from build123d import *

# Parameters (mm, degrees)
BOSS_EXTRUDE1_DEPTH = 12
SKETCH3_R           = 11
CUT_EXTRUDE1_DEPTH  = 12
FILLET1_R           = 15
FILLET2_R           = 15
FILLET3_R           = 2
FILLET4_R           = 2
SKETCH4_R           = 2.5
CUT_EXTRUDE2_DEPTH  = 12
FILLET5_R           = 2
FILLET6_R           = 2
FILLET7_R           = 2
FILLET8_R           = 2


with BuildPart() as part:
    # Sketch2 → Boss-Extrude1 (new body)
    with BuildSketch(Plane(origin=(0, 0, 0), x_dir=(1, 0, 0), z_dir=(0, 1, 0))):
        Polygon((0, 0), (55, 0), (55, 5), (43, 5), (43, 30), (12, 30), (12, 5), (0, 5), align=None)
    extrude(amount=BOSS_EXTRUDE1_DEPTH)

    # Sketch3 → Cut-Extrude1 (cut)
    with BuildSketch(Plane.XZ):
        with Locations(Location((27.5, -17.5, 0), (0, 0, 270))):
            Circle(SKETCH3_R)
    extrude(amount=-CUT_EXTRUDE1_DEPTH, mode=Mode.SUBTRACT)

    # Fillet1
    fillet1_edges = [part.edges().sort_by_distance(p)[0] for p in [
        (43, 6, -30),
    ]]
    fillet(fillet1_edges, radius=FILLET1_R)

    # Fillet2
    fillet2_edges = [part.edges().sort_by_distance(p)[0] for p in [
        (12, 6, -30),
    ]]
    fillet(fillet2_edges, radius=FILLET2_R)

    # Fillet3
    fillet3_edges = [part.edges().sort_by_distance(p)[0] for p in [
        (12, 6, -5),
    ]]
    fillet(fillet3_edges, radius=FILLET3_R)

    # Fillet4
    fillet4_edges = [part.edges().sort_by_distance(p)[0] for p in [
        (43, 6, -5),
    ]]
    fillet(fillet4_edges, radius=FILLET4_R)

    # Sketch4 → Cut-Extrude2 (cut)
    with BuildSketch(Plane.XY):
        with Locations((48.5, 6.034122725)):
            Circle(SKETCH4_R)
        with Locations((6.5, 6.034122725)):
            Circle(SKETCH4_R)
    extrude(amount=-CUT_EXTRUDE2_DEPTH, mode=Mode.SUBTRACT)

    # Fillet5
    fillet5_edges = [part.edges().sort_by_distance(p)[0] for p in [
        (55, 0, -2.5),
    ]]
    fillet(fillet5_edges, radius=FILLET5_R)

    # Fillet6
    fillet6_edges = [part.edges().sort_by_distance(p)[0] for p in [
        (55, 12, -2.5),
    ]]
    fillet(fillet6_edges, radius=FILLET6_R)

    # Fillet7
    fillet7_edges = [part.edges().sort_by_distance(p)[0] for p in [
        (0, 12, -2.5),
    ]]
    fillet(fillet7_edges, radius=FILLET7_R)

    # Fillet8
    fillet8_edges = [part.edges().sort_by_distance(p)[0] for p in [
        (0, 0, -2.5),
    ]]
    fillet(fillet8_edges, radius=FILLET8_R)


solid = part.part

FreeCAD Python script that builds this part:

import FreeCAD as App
import Part
import Sketcher

V = App.Vector
Q = App.Units.Quantity


def edges_at(feature, points):
    """Names of the edges that pass closest to the given points."""
    edges = feature.Shape.Edges
    near = lambda p: min(range(len(edges)), key=lambda i: edges[i].distToShape(Part.Vertex(*p))[0])
    return sorted({f"Edge{near(p) + 1}" for p in points})


def add_polygon(sketch, points):
    """Adds a closed chain of lines whose ends are joined by coincident constraints."""
    first, n = sketch.GeometryCount, len(points)
    for a, b in zip(points, points[1:] + points[:1]):
        sketch.addGeometry(Part.LineSegment(App.Vector(*a, 0), App.Vector(*b, 0)), False)
    for i in range(n):
        sketch.addConstraint(Sketcher.Constraint("Coincident", first + i, 2, first + (i + 1) % n, 1))

doc = App.newDocument("Part")
params = doc.addObject("Spreadsheet::Sheet", "Params")
for row, (alias, value) in enumerate([
    ("sketch1_width", "55 mm"),
    ("sketch1_width2", "12 mm"),
    ("sketch1_height", "5 mm"),
    ("sketch1_height2", "25 mm"),
    ("pad1_length", "12 mm"),
    ("sketch2_diameter", "22 mm"),
    ("pocket1_length", "12 mm"),
    ("fillet_radius", "15 mm"),
    ("fillet2_radius", "15 mm"),
    ("fillet3_radius", "2 mm"),
    ("fillet4_radius", "2 mm"),
    ("sketch3_diameter", "5 mm"),
    ("pocket2_length", "12 mm"),
    ("fillet5_radius", "2 mm"),
    ("fillet6_radius", "2 mm"),
    ("fillet7_radius", "2 mm"),
    ("fillet8_radius", "2 mm"),
], start=1):
    params.set(f"A{row}", alias)
    params.set(f"B{row}", "=" + value)
    params.setAlias(f"B{row}", alias)

body = doc.addObject("PartDesign::Body", "Body")

sketch1 = doc.addObject("Sketcher::SketchObject", "Sketch")
body.addObject(sketch1)
sketch1.AttachmentSupport = (doc.XZ_Plane, [""])
sketch1.MapMode = "FlatFace"
add_polygon(sketch1, [(0, 0), (55, 0), (55, -5), (43, -5), (43, -30), (12, -30), (12, -5), (0, -5)])
sketch1.addConstraint(Sketcher.Constraint("Horizontal", 0))
sketch1.addConstraint(Sketcher.Constraint("Vertical", 1))
sketch1.addConstraint(Sketcher.Constraint("Horizontal", 2))
sketch1.addConstraint(Sketcher.Constraint("Vertical", 3))
sketch1.addConstraint(Sketcher.Constraint("Horizontal", 4))
sketch1.addConstraint(Sketcher.Constraint("Vertical", 5))
sketch1.addConstraint(Sketcher.Constraint("Horizontal", 6))
sketch1.addConstraint(Sketcher.Constraint("Vertical", 7))
sketch1.addConstraint(Sketcher.Constraint("Coincident", 7, 2, -1, 1))
sketch1.addConstraint(Sketcher.Constraint("Horizontal", 2, 2, 5, 2))
sketch1.addConstraint(Sketcher.Constraint("Equal", 2, 6))
sketch1.addConstraint(Sketcher.Constraint("DistanceX", 0, 1, 0, 2, Q("55 mm")))
sketch1.addConstraint(Sketcher.Constraint("DistanceX", 2, 2, 2, 1, Q("12 mm")))
sketch1.addConstraint(Sketcher.Constraint("DistanceY", 1, 2, 1, 1, Q("5 mm")))
sketch1.addConstraint(Sketcher.Constraint("DistanceY", 3, 2, 3, 1, Q("25 mm")))
sketch1.setExpression("Constraints[19]", "Params.sketch1_width")
sketch1.setExpression("Constraints[20]", "Params.sketch1_width2")
sketch1.setExpression("Constraints[21]", "Params.sketch1_height")
sketch1.setExpression("Constraints[22]", "Params.sketch1_height2")
pad1 = doc.addObject("PartDesign::Pad", "Pad")
body.addObject(pad1)
pad1.Profile = sketch1
pad1.setExpression("Length", "Params.pad1_length")
pad1.Reversed = True

sketch2 = doc.addObject("Sketcher::SketchObject", "Sketch001")
body.addObject(sketch2)
sketch2.AttachmentSupport = (doc.XZ_Plane, [""])
sketch2.MapMode = "FlatFace"
sketch2.addGeometry(Part.Circle(V(28, -18, 0), V(0, 0, 1), 11), False)
sketch2.addConstraint(Sketcher.Constraint("Diameter", 0, Q("22 mm")))
sketch2.addConstraint(Sketcher.Constraint("DistanceX", -1, 1, 0, 3, Q("27.5 mm")))
sketch2.addConstraint(Sketcher.Constraint("DistanceY", 0, 3, -1, 1, Q("17.5 mm")))
sketch2.setExpression("Constraints[0]", "Params.sketch2_diameter")
pocket1 = doc.addObject("PartDesign::Pocket", "Pocket")
body.addObject(pocket1)
pocket1.Profile = sketch2
pocket1.setExpression("Length", "Params.pocket1_length")
doc.recompute()

fillet = doc.addObject("PartDesign::Fillet", "Fillet")
body.addObject(fillet)
fillet.Base = (pocket1, edges_at(pocket1, [(43, 6, -30)]))
fillet.setExpression("Radius", "Params.fillet_radius")
doc.recompute()

fillet2 = doc.addObject("PartDesign::Fillet", "Fillet001")
body.addObject(fillet2)
fillet2.Base = (fillet, edges_at(fillet, [(12, 6, -30)]))
fillet2.setExpression("Radius", "Params.fillet2_radius")
doc.recompute()

fillet3 = doc.addObject("PartDesign::Fillet", "Fillet002")
body.addObject(fillet3)
fillet3.Base = (fillet2, edges_at(fillet2, [(12, 6, -5)]))
fillet3.setExpression("Radius", "Params.fillet3_radius")
doc.recompute()

fillet4 = doc.addObject("PartDesign::Fillet", "Fillet003")
body.addObject(fillet4)
fillet4.Base = (fillet3, edges_at(fillet3, [(43, 6, -5)]))
fillet4.setExpression("Radius", "Params.fillet4_radius")

sketch3 = doc.addObject("Sketcher::SketchObject", "Sketch002")
body.addObject(sketch3)
sketch3.AttachmentSupport = (doc.XY_Plane, [""])
sketch3.MapMode = "FlatFace"
sketch3.addGeometry(Part.Circle(V(48.5, 6, 0), V(0, 0, 1), 2.5), False)
sketch3.addGeometry(Part.Circle(V(6.5, 6, 0), V(0, 0, 1), 2.5), False)
sketch3.addConstraint(Sketcher.Constraint("Equal", 0, 1))
sketch3.addConstraint(Sketcher.Constraint("Horizontal", 0, 3, 1, 3))
sketch3.addConstraint(Sketcher.Constraint("Diameter", 0, Q("5 mm")))
sketch3.addConstraint(Sketcher.Constraint("DistanceX", 1, 3, 0, 3, Q("42 mm")))
sketch3.addConstraint(Sketcher.Constraint("DistanceX", -1, 1, 0, 3, Q("48.5 mm")))
sketch3.addConstraint(Sketcher.Constraint("DistanceY", -1, 1, 0, 3, Q("6.034123 mm")))
sketch3.setExpression("Constraints[2]", "Params.sketch3_diameter")
pocket2 = doc.addObject("PartDesign::Pocket", "Pocket001")
body.addObject(pocket2)
pocket2.Profile = sketch3
pocket2.setExpression("Length", "Params.pocket2_length")
doc.recompute()

fillet5 = doc.addObject("PartDesign::Fillet", "Fillet004")
body.addObject(fillet5)
fillet5.Base = (pocket2, edges_at(pocket2, [(55, 0, -2.5)]))
fillet5.setExpression("Radius", "Params.fillet5_radius")
doc.recompute()

fillet6 = doc.addObject("PartDesign::Fillet", "Fillet005")
body.addObject(fillet6)
fillet6.Base = (fillet5, edges_at(fillet5, [(55, 12, -2.5)]))
fillet6.setExpression("Radius", "Params.fillet6_radius")
doc.recompute()

fillet7 = doc.addObject("PartDesign::Fillet", "Fillet006")
body.addObject(fillet7)
fillet7.Base = (fillet6, edges_at(fillet6, [(0, 12, -2.5)]))
fillet7.setExpression("Radius", "Params.fillet7_radius")
doc.recompute()

fillet8 = doc.addObject("PartDesign::Fillet", "Fillet007")
body.addObject(fillet8)
fillet8.Base = (fillet7, edges_at(fillet7, [(0, 0, -2.5)]))
fillet8.setExpression("Radius", "Params.fillet8_radius")

doc.recompute()
